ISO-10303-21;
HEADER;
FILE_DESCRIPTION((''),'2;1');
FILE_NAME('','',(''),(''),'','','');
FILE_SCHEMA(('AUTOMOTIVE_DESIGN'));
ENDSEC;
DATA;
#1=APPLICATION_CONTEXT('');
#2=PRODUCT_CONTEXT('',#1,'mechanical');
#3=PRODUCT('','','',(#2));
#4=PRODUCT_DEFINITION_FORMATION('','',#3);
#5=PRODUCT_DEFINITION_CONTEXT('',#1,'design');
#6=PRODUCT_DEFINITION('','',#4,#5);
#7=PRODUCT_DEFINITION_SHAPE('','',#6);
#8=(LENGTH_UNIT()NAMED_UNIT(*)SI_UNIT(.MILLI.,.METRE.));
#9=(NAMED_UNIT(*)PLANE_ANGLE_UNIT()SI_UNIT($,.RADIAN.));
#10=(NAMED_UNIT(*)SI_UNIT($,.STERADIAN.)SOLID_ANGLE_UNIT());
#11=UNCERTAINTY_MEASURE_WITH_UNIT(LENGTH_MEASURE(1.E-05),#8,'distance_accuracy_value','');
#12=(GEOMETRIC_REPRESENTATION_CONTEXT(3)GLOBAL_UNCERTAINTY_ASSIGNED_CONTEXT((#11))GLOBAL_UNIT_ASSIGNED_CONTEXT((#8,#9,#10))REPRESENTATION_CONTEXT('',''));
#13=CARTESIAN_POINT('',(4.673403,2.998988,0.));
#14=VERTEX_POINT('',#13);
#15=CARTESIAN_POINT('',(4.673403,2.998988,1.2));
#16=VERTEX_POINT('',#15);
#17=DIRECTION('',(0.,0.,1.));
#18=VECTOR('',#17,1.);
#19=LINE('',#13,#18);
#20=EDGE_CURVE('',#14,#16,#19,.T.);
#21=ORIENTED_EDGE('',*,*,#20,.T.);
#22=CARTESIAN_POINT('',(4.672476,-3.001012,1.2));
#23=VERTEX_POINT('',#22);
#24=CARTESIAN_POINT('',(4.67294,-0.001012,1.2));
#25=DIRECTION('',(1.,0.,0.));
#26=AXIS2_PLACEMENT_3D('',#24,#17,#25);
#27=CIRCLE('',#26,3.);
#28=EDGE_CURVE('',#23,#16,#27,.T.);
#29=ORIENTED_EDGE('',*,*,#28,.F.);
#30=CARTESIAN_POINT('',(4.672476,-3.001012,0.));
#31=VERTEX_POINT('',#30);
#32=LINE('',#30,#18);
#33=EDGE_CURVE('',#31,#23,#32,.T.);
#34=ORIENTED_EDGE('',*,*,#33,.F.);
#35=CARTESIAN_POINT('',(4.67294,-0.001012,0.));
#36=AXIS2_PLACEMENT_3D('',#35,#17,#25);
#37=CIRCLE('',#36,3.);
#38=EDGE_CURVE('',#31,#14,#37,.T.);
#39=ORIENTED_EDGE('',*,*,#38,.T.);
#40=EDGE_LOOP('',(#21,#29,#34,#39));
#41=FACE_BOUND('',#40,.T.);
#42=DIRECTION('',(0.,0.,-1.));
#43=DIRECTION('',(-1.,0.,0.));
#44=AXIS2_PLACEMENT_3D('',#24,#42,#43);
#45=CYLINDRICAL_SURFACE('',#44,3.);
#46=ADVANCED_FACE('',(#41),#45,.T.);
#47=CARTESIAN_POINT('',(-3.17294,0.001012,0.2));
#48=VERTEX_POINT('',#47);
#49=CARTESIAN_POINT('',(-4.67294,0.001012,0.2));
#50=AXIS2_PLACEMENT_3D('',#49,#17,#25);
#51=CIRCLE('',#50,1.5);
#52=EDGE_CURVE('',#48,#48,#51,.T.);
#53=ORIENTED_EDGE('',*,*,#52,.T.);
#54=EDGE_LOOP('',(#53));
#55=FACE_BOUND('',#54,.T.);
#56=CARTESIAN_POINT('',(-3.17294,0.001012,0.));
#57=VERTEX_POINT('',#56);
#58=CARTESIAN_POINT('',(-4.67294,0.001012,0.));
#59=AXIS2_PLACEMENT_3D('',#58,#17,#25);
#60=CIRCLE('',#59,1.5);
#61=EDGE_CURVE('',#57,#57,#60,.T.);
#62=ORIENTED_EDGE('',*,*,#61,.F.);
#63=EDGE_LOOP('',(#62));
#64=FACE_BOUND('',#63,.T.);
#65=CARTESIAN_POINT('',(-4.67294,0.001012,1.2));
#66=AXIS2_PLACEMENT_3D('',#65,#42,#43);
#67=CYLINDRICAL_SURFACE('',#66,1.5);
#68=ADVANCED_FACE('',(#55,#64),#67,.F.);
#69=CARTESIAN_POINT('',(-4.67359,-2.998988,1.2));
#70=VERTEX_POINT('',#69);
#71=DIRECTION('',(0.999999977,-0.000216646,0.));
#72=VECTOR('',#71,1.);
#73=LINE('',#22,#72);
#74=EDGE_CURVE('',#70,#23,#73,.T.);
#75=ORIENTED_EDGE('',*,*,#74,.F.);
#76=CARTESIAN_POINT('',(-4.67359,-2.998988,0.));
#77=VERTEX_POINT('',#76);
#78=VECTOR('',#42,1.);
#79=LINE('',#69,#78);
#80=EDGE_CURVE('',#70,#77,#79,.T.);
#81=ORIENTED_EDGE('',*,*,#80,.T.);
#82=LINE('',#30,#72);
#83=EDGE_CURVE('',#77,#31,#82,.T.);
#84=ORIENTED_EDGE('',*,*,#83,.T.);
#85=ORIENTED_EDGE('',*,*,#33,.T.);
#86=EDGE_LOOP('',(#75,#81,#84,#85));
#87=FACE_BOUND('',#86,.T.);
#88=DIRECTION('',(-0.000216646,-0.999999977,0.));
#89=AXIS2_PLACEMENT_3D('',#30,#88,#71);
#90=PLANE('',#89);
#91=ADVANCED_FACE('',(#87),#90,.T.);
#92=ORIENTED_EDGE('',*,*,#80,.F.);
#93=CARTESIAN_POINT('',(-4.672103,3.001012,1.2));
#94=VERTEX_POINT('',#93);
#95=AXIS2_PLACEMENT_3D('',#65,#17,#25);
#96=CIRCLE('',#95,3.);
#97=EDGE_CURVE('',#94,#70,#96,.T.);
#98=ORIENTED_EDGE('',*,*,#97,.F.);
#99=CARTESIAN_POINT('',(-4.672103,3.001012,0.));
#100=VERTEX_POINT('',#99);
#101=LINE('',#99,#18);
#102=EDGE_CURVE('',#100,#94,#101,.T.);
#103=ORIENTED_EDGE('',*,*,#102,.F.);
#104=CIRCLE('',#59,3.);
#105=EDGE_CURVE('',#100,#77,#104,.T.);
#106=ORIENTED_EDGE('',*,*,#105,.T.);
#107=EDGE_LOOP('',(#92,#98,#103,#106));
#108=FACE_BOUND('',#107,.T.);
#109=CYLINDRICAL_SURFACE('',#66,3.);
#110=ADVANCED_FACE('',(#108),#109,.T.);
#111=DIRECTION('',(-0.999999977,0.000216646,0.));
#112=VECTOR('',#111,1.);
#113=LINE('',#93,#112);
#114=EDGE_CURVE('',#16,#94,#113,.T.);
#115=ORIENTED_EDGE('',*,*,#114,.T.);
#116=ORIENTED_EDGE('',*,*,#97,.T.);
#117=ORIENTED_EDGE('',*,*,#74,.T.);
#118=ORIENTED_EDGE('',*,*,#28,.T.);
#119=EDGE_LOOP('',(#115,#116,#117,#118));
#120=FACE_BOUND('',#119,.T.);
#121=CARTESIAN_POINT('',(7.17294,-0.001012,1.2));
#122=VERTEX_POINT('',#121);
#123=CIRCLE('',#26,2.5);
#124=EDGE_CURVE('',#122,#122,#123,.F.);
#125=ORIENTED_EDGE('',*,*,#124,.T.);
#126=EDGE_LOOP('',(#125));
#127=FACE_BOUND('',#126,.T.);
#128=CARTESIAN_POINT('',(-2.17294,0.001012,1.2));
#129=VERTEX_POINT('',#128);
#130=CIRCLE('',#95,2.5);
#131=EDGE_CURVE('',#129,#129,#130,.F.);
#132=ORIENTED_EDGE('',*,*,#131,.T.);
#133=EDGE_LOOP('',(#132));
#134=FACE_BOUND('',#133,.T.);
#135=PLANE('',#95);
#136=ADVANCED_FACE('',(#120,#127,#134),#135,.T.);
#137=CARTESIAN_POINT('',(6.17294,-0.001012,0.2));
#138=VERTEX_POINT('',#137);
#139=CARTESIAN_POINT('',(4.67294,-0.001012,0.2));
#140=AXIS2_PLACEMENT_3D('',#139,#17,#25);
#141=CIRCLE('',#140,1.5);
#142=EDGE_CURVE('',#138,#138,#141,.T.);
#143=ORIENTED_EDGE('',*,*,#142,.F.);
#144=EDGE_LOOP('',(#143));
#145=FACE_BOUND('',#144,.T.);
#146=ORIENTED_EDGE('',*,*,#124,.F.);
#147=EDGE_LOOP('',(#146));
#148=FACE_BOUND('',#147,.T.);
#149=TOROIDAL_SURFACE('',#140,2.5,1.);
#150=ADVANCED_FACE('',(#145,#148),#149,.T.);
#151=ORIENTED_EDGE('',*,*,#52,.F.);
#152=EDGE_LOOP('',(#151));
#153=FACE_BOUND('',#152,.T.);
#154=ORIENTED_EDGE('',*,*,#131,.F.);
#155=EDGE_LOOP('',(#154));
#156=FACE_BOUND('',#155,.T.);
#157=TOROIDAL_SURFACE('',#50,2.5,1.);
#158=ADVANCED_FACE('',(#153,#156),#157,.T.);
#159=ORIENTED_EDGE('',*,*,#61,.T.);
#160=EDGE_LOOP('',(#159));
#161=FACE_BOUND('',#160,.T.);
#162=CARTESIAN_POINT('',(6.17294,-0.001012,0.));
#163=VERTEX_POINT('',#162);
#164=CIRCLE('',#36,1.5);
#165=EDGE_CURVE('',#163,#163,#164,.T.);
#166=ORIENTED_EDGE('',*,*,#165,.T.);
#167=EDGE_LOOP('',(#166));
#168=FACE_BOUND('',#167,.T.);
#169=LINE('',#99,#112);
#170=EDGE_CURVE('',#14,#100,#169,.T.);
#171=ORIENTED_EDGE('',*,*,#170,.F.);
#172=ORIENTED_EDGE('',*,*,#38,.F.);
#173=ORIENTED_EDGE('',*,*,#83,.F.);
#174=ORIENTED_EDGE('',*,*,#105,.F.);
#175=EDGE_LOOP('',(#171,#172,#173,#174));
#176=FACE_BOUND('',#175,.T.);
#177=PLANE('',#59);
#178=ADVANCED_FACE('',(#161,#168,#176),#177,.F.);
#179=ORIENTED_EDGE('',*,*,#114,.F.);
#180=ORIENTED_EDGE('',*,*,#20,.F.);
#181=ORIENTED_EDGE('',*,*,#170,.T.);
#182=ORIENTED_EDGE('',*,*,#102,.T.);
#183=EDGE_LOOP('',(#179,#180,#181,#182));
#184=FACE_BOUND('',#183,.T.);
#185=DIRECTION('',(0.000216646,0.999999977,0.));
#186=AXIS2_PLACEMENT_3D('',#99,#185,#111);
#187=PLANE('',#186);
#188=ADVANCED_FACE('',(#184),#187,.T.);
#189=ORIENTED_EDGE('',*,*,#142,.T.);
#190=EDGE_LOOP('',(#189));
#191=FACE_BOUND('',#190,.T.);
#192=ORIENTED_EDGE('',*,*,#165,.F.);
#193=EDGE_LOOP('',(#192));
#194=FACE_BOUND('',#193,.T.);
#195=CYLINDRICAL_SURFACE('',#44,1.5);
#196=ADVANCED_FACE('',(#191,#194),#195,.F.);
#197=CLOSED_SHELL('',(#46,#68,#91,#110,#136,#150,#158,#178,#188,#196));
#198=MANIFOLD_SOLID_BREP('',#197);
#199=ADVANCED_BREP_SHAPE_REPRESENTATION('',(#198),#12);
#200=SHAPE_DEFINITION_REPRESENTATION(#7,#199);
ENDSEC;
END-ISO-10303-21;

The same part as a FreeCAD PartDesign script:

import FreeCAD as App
import Part
import Sketcher
from FreeCAD import Vector
Q = App.Units.Quantity


def edges_at(feature, points):
    """Names of the edges that pass closest to the given points."""
    edges = feature.Shape.Edges
    near = lambda p: min(range(len(edges)), key=lambda i: edges[i].distToShape(Part.Vertex(*p))[0])
    return sorted({f"Edge{near(p) + 1}" for p in points})


def add_polygon(sketch, points):
    """Adds a closed chain of lines whose ends are joined by coincident constraints."""
    first, n = sketch.GeometryCount, len(points)
    for a, b in zip(points, points[1:] + points[:1]):
        sketch.addGeometry(Part.LineSegment(App.Vector(*a, 0), App.Vector(*b, 0)), False)
    for i in range(n):
        sketch.addConstraint(Sketcher.Constraint("Coincident", first + i, 2, first + (i + 1) % n, 1))

doc = App.newDocument("Part")
body = doc.addObject("PartDesign::Body", "Body")

# Sketch on XY plane
sketch1 = body.newObject("Sketcher::SketchObject", "Sketch")
sketch1.AttachmentSupport = (doc.getObject("XY_Plane"), [""])
sketch1.MapMode = "FlatFace"
sketch1.addGeometry([
    Part.Circle(Vector(-4.7, 0, 0), Vector(0, 0, 1), 3),
    Part.Circle(Vector(-4.7, 0, 0), Vector(0, 0, 1), 1.5),
], False)
sketch1.addConstraint([
    Sketcher.Constraint("Coincident", 1, 3, 0, 3),
    Sketcher.Constraint("Diameter", 0, Q("6 mm")),
    Sketcher.Constraint("Diameter", 1, Q("3 mm")),
    Sketcher.Constraint("DistanceX", 0, 3, -1, 1, Q("4.67294 mm")),
    Sketcher.Constraint("DistanceY", -1, 1, 0, 3, Q("0.001012 mm")),
])
pad1 = body.newObject("PartDesign::Pad", "Pad")
pad1.Profile = sketch1
pad1.Length = 1.2
body2 = doc.addObject("PartDesign::Body", "Body001")

# Sketch on XY plane
sketch2 = body2.newObject("Sketcher::SketchObject", "Sketch001")
sketch2.AttachmentSupport = (doc.getObject("XY_Plane001"), [""])
sketch2.MapMode = "FlatFace"
sketch2.addGeometry([
    Part.Circle(Vector(4.7, 0, 0), Vector(0, 0, 1), 3),
    Part.Circle(Vector(4.7, 0, 0), Vector(0, 0, 1), 1.5),
], False)
sketch2.addConstraint([
    Sketcher.Constraint("Coincident", 1, 3, 0, 3),
    Sketcher.Constraint("Diameter", 0, Q("6 mm")),
    Sketcher.Constraint("Diameter", 1, Q("3 mm")),
    Sketcher.Constraint("DistanceX", -1, 1, 0, 3, Q("4.67294 mm")),
    Sketcher.Constraint("DistanceY", 0, 3, -1, 1, Q("0.001012 mm")),
])
pad2 = body2.newObject("PartDesign::Pad", "Pad001")
pad2.Profile = sketch2
pad2.Length = 1.2
body.AllowCompound = True
doc.recompute()

boolean = body.newObject("PartDesign::Boolean", "Boolean")
boolean.Type = "Fuse"
boolean.addObjects([body2])

# Sketch on XY plane
sketch3 = body.newObject("Sketcher::SketchObject", "Sketch002")
sketch3.AttachmentSupport = (doc.getObject("XY_Plane"), [""])
sketch3.MapMode = "FlatFace"
sketch3.AttachmentOffset = App.Placement(Vector(0, 0, 1.2), App.Rotation())
add_polygon(sketch3, [(4.7, 3), (-4.7, 3), (-1.7, 0), (-4.7, -3), (4.7, -3), (1.7, 0)])  # lines 0-5
sketch3.addConstraint([
    Sketcher.Constraint("Perpendicular", 1, 2),
    Sketcher.Constraint("Parallel", 0, 3),
    Sketcher.Constraint("Perpendicular", 2, 4),
    Sketcher.Constraint("Perpendicular", 4, 5),
    Sketcher.Constraint("DistanceY", 2, 2, 0, 2, Q("6 mm")),
    Sketcher.Constraint("Distance", 1, Q("4.241651 mm")),
    Sketcher.Constraint("DistanceX", 1, 2, -1, 1, Q("1.67294 mm")),
    Sketcher.Constraint("DistanceX", -1, 1, 4, 2, Q("1.67294 mm")),
    Sketcher.Constraint("DistanceY", 3, 2, 1, 2, Q("3.002589 mm")),
    Sketcher.Constraint("DistanceX", 0, 2, 3, 2, Q("9.34458 mm")),
    Sketcher.Constraint("DistanceY", 4, 2, 1, 2, Q("0.00278 mm")),
    Sketcher.Constraint("DistanceY", -1, 1, 0, 2, Q("3.001012 mm")),
])
pad3 = body.newObject("PartDesign::Pad", "Pad002")
pad3.Profile = sketch3
pad3.Length = 1.2
pad3.Reversed = True
doc.recompute()

fillet = body.newObject("PartDesign::Fillet", "Fillet")
fillet.Base = (pad3, edges_at(pad3, [(3.173, -0.001, 1.2), (-6.173, 0.001, 1.2)]))
fillet.Radius = 1

doc.recompute()
